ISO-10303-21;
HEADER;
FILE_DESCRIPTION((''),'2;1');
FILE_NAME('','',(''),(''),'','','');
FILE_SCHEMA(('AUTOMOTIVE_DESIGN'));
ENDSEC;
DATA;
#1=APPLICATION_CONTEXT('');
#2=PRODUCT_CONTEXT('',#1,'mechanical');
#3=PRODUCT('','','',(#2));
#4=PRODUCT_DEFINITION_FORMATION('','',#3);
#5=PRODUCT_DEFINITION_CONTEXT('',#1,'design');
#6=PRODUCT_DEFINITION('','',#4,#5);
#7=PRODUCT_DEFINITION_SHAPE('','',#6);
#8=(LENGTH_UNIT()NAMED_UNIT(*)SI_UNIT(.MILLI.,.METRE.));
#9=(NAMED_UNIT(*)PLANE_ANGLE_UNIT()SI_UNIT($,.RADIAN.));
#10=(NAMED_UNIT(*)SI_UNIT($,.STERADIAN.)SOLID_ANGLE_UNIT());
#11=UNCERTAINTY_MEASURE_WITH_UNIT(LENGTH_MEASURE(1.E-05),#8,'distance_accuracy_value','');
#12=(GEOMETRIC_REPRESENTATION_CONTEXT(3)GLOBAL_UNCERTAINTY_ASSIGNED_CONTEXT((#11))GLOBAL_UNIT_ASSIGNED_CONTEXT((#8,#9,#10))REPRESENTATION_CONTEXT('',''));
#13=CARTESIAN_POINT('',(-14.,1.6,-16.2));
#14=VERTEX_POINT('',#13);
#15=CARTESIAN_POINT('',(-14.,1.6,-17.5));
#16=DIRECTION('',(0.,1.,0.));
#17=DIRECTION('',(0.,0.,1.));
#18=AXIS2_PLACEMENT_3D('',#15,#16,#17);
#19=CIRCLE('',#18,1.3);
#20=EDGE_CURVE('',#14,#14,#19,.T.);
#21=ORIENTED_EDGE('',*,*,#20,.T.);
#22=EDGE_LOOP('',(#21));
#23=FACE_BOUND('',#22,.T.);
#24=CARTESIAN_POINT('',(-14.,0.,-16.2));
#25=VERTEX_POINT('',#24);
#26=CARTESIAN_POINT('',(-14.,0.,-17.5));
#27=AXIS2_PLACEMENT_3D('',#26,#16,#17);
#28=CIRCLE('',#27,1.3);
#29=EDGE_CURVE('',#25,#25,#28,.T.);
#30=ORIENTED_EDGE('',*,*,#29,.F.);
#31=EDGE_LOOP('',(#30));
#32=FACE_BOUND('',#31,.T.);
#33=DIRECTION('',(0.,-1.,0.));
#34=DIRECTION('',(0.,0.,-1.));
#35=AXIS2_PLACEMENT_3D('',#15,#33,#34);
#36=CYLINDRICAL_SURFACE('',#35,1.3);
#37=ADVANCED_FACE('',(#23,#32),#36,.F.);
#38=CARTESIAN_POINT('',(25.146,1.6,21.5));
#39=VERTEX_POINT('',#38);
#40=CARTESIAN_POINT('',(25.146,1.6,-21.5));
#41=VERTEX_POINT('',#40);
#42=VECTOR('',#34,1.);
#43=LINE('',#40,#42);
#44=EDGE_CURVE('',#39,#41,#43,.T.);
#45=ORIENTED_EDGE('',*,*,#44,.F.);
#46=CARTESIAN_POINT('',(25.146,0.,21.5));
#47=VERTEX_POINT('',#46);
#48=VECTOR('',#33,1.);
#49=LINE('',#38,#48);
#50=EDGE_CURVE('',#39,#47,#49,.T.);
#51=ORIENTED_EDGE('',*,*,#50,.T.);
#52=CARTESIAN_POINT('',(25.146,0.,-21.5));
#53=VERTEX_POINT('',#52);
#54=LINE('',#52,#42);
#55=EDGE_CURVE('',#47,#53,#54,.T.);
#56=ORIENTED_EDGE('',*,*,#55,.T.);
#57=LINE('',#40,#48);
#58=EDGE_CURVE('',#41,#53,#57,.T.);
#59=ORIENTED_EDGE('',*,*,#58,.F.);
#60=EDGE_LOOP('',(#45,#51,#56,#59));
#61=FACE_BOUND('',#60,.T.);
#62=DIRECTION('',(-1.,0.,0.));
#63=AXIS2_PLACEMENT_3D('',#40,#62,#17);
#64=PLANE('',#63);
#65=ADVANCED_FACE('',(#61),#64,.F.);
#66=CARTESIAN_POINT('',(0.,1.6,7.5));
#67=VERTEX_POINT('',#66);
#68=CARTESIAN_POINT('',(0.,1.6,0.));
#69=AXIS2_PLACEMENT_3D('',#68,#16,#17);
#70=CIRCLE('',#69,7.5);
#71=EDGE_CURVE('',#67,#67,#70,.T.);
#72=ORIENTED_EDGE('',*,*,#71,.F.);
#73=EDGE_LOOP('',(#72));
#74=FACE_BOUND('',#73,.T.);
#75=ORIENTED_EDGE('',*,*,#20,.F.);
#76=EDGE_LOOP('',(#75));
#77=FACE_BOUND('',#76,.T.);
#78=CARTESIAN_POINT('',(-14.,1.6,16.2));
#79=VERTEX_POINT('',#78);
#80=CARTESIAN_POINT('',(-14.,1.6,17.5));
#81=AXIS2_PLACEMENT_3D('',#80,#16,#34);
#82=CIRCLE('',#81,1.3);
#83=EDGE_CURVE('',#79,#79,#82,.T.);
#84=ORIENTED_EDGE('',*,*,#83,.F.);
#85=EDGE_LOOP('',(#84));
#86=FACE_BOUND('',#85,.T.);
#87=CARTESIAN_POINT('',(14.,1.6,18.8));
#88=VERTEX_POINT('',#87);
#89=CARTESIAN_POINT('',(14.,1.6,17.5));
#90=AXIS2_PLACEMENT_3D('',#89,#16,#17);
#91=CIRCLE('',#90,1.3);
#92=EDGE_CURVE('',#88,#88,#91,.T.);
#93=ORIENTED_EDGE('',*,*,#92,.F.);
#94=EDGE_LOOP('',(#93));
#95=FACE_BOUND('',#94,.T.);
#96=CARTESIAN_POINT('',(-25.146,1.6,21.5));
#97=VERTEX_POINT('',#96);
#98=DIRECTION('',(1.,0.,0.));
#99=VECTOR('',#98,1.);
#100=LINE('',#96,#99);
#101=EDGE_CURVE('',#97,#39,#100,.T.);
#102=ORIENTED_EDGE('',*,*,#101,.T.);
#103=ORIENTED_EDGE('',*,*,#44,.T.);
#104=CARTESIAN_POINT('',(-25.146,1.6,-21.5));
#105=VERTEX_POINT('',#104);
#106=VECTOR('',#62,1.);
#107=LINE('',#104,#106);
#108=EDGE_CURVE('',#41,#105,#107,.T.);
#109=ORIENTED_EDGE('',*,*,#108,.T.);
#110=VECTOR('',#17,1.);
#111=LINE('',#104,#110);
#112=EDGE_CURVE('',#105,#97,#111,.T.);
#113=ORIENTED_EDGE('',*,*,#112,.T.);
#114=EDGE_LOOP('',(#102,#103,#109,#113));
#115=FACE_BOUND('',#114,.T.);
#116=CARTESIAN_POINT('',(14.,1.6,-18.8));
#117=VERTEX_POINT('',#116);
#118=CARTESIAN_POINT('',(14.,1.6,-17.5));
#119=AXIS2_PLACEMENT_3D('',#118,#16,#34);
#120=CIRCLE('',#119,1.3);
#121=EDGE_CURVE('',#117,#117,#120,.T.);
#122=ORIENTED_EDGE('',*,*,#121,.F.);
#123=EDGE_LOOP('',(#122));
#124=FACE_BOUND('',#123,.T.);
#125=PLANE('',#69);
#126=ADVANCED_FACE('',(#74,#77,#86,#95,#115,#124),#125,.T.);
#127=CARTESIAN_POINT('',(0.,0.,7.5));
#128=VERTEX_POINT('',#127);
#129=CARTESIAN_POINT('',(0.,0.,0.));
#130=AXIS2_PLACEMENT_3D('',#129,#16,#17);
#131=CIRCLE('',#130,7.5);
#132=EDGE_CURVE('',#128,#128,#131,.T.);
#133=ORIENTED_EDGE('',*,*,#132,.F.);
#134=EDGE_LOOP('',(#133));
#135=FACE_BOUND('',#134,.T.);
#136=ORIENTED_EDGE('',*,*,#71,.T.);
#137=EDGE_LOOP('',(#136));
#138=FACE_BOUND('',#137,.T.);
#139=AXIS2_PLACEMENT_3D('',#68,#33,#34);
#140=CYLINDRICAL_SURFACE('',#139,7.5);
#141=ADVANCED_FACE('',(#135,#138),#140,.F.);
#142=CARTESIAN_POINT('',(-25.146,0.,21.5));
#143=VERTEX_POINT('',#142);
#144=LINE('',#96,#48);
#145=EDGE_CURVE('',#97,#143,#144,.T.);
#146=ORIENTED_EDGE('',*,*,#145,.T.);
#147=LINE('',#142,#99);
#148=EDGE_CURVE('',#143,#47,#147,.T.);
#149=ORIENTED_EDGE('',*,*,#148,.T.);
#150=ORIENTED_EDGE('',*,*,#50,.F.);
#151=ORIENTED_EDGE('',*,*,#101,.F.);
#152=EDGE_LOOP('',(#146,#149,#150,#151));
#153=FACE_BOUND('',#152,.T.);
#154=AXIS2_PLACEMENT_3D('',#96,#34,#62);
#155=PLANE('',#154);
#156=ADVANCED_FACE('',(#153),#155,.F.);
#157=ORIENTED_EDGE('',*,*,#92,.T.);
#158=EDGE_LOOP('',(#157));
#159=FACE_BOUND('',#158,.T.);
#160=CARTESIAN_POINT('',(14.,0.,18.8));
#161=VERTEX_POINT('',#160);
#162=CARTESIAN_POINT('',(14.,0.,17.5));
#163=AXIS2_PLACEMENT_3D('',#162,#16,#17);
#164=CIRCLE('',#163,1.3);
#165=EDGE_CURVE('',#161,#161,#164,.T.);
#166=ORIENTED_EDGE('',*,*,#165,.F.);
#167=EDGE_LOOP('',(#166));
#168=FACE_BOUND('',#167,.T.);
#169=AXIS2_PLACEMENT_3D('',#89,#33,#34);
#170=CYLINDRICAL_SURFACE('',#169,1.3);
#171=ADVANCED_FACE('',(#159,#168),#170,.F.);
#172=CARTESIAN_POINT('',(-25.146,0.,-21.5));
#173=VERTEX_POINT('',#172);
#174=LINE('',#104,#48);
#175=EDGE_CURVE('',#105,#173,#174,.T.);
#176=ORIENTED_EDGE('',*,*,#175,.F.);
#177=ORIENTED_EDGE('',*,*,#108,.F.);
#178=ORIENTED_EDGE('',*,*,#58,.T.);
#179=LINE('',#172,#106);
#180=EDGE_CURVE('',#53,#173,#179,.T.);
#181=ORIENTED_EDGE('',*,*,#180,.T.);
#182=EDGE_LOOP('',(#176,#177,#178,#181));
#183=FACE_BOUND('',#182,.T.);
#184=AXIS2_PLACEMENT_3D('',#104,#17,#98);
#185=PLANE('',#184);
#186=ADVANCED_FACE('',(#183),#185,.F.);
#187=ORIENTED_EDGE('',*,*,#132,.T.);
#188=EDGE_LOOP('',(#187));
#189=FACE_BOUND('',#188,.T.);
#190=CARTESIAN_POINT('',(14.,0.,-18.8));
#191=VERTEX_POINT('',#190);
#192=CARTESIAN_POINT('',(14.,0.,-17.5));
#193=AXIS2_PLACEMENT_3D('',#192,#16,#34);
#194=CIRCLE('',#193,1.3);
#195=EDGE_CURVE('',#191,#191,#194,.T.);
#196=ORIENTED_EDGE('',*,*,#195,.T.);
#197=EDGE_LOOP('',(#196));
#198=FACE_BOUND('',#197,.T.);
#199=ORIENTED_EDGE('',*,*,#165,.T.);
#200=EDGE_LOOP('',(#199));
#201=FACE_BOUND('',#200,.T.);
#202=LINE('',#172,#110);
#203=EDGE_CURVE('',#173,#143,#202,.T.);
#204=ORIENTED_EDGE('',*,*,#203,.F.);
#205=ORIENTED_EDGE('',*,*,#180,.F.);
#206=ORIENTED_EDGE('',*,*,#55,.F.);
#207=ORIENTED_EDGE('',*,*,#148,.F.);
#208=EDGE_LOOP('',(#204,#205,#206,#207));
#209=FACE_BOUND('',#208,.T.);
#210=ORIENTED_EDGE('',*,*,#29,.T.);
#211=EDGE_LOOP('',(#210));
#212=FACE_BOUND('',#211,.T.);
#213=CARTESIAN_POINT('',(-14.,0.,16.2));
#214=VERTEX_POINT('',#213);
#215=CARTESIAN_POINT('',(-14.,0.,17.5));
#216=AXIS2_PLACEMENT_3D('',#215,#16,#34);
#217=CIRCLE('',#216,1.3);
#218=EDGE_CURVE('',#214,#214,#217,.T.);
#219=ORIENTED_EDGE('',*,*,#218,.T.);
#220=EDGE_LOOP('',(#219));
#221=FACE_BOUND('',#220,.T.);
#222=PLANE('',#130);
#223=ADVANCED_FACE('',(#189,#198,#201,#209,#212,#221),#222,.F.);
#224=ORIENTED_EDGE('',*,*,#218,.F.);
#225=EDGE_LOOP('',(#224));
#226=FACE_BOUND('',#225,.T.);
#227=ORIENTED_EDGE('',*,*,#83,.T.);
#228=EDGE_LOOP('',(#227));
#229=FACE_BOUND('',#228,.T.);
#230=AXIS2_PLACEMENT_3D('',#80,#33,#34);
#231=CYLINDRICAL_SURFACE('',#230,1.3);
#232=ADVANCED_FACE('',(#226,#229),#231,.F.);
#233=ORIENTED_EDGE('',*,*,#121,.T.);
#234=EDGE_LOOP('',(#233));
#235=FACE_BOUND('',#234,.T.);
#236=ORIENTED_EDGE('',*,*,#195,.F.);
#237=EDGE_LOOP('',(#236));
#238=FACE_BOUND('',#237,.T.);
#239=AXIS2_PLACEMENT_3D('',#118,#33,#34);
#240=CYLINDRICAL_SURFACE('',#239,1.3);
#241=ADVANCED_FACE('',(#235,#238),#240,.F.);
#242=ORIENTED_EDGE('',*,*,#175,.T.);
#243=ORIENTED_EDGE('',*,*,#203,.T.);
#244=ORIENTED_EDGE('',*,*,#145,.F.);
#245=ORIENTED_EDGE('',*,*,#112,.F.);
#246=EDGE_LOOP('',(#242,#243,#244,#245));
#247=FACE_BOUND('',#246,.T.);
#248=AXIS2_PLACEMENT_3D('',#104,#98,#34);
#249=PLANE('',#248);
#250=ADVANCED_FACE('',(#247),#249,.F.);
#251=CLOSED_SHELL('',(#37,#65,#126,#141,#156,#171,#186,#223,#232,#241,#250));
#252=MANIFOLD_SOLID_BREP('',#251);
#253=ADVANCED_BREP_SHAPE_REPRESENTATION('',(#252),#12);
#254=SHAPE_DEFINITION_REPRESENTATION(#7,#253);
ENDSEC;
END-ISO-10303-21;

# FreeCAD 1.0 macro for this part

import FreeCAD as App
import Part
import Sketcher
Q = App.Units.Quantity

doc = App.newDocument("Part")
params = doc.addObject("Spreadsheet::Sheet", "Params")
for row, (alias, value) in enumerate([
    ("sketch1_diameter", "15 mm"),
    ("sketch1_height", "43 mm"),
    ("pad1_length", "1.6 mm"),
    ("sketch2_diameter", "2.6 mm"),
], start=1):
    params.set(f"A{row}", alias)
    params.set(f"B{row}", "=" + value)
    params.setAlias(f"B{row}", alias)

body = doc.addObject("PartDesign::Body", "Body")

# Sketch on XZ plane
sketch1 = body.newObject("Sketcher::SketchObject", "Sketch")
sketch1.AttachmentSupport = (doc.getObject("XZ_Plane"), [""])
sketch1.MapMode = "FlatFace"
sketch1.addGeometry(Part.LineSegment(App.Vector(-25, -22, 0), App.Vector(-25, 22, 0)), False)
sketch1.addGeometry(Part.LineSegment(App.Vector(-25, 22, 0), App.Vector(25, 22, 0)), False)
sketch1.addGeometry(Part.LineSegment(App.Vector(25, 22, 0), App.Vector(25, -22, 0)), False)
sketch1.addGeometry(Part.LineSegment(App.Vector(25, -22, 0), App.Vector(-25, -22, 0)), False)
sketch1.addGeometry(Part.Circle(App.Vector(0, 0, 0), App.Vector(0, 0, 1), 8), False)
sketch1.addConstraint(Sketcher.Constraint("Coincident", 0, 2, 1, 1))
sketch1.addConstraint(Sketcher.Constraint("Coincident", 1, 2, 2, 1))
sketch1.addConstraint(Sketcher.Constraint("Coincident", 2, 2, 3, 1))
sketch1.addConstraint(Sketcher.Constraint("Coincident", 3, 2, 0, 1))
sketch1.addConstraint(Sketcher.Constraint("Vertical", 0))
sketch1.addConstraint(Sketcher.Constraint("Horizontal", 1))
sketch1.addConstraint(Sketcher.Constraint("Vertical", 2))
sketch1.addConstraint(Sketcher.Constraint("Horizontal", 3))
sketch1.addConstraint(Sketcher.Constraint("Coincident", 4, 3, -1, 1))
sketch1.addConstraint(Sketcher.Constraint("Symmetric", 0, 2, 2, 2, -1, 1))
sketch1.addConstraint(Sketcher.Constraint("Diameter", 4, Q("15 mm")))
sketch1.addConstraint(Sketcher.Constraint("DistanceY", 0, 1, 0, 2, Q("43 mm")))
sketch1.addConstraint(Sketcher.Constraint("DistanceX", 1, 1, 1, 2, Q("50.292 mm")))
sketch1.setExpression("Constraints[10]", "Params.sketch1_diameter")
sketch1.setExpression("Constraints[11]", "Params.sketch1_height")
pad1 = body.newObject("PartDesign::Pad", "Pad")
pad1.Profile = sketch1
pad1.setExpression("Length", "Params.pad1_length")
pad1.Reversed = True

# Sketch on XZ plane
sketch2 = body.newObject("Sketcher::SketchObject", "Sketch001")
sketch2.AttachmentSupport = (doc.getObject("XZ_Plane"), [""])
sketch2.MapMode = "FlatFace"
sketch2.addGeometry(Part.Circle(App.Vector(-14, -17.5, 0), App.Vector(0, 0, 1), 1.3), False)
sketch2.addGeometry(Part.Circle(App.Vector(14, -17.5, 0), App.Vector(0, 0, 1), 1.3), False)
sketch2.addGeometry(Part.Circle(App.Vector(14, 17.5, 0), App.Vector(0, 0, 1), 1.3), False)
sketch2.addGeometry(Part.Circle(App.Vector(-14, 17.5, 0), App.Vector(0, 0, 1), 1.3), False)
sketch2.addConstraint(Sketcher.Constraint("Equal", 0, 1))
sketch2.addConstraint(Sketcher.Constraint("Equal", 1, 2))
sketch2.addConstraint(Sketcher.Constraint("Equal", 2, 3))
sketch2.addConstraint(Sketcher.Constraint("Symmetric", 0, 3, 2, 3, -1, 1))
sketch2.addConstraint(Sketcher.Constraint("Symmetric", 1, 3, 3, 3, -1, 1))
sketch2.addConstraint(Sketcher.Constraint("Symmetric", 0, 3, 1, 3, -2))
sketch2.addConstraint(Sketcher.Constraint("Diameter", 0, Q("2.6 mm")))
sketch2.addConstraint(Sketcher.Constraint("DistanceX", 0, 3, -1, 1, Q("14 mm")))
sketch2.addConstraint(Sketcher.Constraint("DistanceY", 1, 3, 2, 3, Q("35 mm")))
sketch2.setExpression("Constraints[6]", "Params.sketch2_diameter")
pocket1 = body.newObject("PartDesign::Pocket", "Pocket")
pocket1.Profile = sketch2
pocket1.Type = "ThroughAll"

doc.recompute()
